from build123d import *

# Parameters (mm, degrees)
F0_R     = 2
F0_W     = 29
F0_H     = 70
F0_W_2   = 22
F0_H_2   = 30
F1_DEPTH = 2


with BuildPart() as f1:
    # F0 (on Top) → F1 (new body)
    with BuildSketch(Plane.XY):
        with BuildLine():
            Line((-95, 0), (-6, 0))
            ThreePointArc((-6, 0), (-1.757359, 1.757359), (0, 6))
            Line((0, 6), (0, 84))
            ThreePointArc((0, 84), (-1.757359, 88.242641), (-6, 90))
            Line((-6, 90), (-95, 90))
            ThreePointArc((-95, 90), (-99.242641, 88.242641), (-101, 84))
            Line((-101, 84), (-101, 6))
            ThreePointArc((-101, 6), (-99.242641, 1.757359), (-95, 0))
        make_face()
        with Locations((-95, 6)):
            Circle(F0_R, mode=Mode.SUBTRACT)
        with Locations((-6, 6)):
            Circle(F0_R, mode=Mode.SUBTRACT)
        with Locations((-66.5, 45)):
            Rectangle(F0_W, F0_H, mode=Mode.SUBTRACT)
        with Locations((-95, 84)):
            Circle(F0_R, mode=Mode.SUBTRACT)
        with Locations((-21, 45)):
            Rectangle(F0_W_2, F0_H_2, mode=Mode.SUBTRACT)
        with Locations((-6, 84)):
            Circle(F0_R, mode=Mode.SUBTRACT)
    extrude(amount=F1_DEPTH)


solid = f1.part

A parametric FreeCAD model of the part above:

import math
import FreeCAD as App
import Part
import Sketcher
from FreeCAD import Vector


def add_polygon(sketch, points):
    """Adds a closed chain of lines whose ends are joined by coincident constraints."""
    first, n = sketch.GeometryCount, len(points)
    for a, b in zip(points, points[1:] + points[:1]):
        sketch.addGeometry(Part.LineSegment(App.Vector(*a, 0), App.Vector(*b, 0)), False)
    for i in range(n):
        sketch.addConstraint(Sketcher.Constraint("Coincident", first + i, 2, first + (i + 1) % n, 1))

doc = App.newDocument("Part")
params = doc.addObject("Spreadsheet::Sheet", "Params")
for row, (alias, value) in enumerate([
    ("sketch1_diameter", "4 mm"),
    ("sketch1_radius", "5.999999 mm"),
    ("sketch1_width", "89 mm"),
    ("sketch1_width2", "29 mm"),
    ("sketch1_width3", "22 mm"),
    ("pad1_length", "2 mm"),
], start=1):
    params.set(f"A{row}", alias)
    params.set(f"B{row}", "=" + value)
    params.setAlias(f"B{row}", alias)

body = doc.addObject("PartDesign::Body", "Body")

# Sketch on XY plane
sketch1 = doc.addObject("Sketcher::SketchObject", "Sketch")
body.addObject(sketch1)
sketch1.AttachmentSupport = (doc.XY_Plane, [""])
sketch1.MapMode = "FlatFace"
sketch1.addGeometry(Part.LineSegment(Vector(-95, 0, 0), Vector(-6, 0, 0)), False)  # 0
sketch1.addGeometry(Part.ArcOfCircle(Part.Circle(Vector(-5.999999, 5.999999, 0), Vector(0, 0, 1), 5.999999), math.radians(-90.00001), math.radians(0.00001)), False)  # 1
sketch1.addGeometry(Part.LineSegment(Vector(0, 6, 0), Vector(0, 84, 0)), False)  # 2
sketch1.addGeometry(Part.ArcOfCircle(Part.Circle(Vector(-5.999999, 84.000001, 0), Vector(0, 0, 1), 5.999999), math.radians(-0.00001), math.radians(90.00001)), False)  # 3
sketch1.addGeometry(Part.LineSegment(Vector(-6, 90, 0), Vector(-95, 90, 0)), False)  # 4
sketch1.addGeometry(Part.ArcOfCircle(Part.Circle(Vector(-95.000001, 84.000001, 0), Vector(0, 0, 1), 5.999999), math.radians(89.99999), math.radians(180.00001)), False)  # 5
sketch1.addGeometry(Part.LineSegment(Vector(-101, 84, 0), Vector(-101, 6, 0)), False)  # 6
sketch1.addGeometry(Part.ArcOfCircle(Part.Circle(Vector(-95.000001, 5.999999, 0), Vector(0, 0, 1), 5.999999), math.radians(179.99999), math.radians(270.00001)), False)  # 7
sketch1.addGeometry(Part.Circle(Vector(-95, 6, 0), Vector(0, 0, 1), 2), False)  # 8
sketch1.addGeometry(Part.Circle(Vector(-6, 6, 0), Vector(0, 0, 1), 2), False)  # 9
add_polygon(sketch1, [(-52, 10), (-81, 10), (-81, 80), (-52, 80)])  # lines 10-13
sketch1.addGeometry(Part.Circle(Vector(-95, 84, 0), Vector(0, 0, 1), 2), False)  # 14
add_polygon(sketch1, [(-10, 30), (-32, 30), (-32, 60), (-10, 60)])  # lines 15-18
sketch1.addGeometry(Part.Circle(Vector(-6, 84, 0), Vector(0, 0, 1), 2), False)  # 19
sketch1.addConstraint([
    Sketcher.Constraint("Tangent", 0, 2, 1, 1),
    Sketcher.Constraint("Tangent", 1, 2, 2, 1),
    Sketcher.Constraint("Tangent", 2, 2, 3, 1),
    Sketcher.Constraint("Tangent", 3, 2, 4, 1),
    Sketcher.Constraint("Tangent", 4, 2, 5, 1),
    Sketcher.Constraint("Tangent", 5, 2, 6, 1),
    Sketcher.Constraint("Tangent", 6, 2, 7, 1),
    Sketcher.Constraint("Tangent", 7, 2, 0, 1),
    Sketcher.Constraint("Horizontal", 0),
    Sketcher.Constraint("Vertical", 2),
    Sketcher.Constraint("Horizontal", 4),
    Sketcher.Constraint("Vertical", 6),
    Sketcher.Constraint("Horizontal", 10),
    Sketcher.Constraint("Vertical", 11),
    Sketcher.Constraint("Horizontal", 12),
    Sketcher.Constraint("Vertical", 13),
    Sketcher.Constraint("Horizontal", 15),
    Sketcher.Constraint("Vertical", 16),
    Sketcher.Constraint("Horizontal", 17),
    Sketcher.Constraint("Vertical", 18),
    Sketcher.Constraint("Coincident", 8, 3, 7, 3),
    Sketcher.Constraint("Coincident", 9, 3, 1, 3),
    Sketcher.Constraint("Coincident", 14, 3, 5, 3),
    Sketcher.Constraint("Coincident", 19, 3, 3, 3),
    Sketcher.Constraint("Equal", 1, 3),
    Sketcher.Constraint("Equal", 3, 5),
    Sketcher.Constraint("Equal", 5, 7),
    Sketcher.Constraint("Equal", 8, 9),
    Sketcher.Constraint("Equal", 9, 14),
    Sketcher.Constraint("Equal", 14, 19),
    Sketcher.Constraint("PointOnObject", 0, 2, -1),
    Sketcher.Constraint("PointOnObject", 1, 2, -2),
    Sketcher.Constraint("Diameter", 8, 4.0),
    Sketcher.Constraint("Radius", 1, 5.999999),
    Sketcher.Constraint("DistanceX", 0, 1, 0, 2, 89.0),
    Sketcher.Constraint("DistanceX", 10, 2, 10, 1, 29.0),
    Sketcher.Constraint("DistanceX", 15, 2, 15, 1, 22.0),
    Sketcher.Constraint("DistanceY", 2, 1, 2, 2, 78.0),
    Sketcher.Constraint("DistanceY", 11, 1, 11, 2, 70.0),
    Sketcher.Constraint("DistanceY", 16, 1, 16, 2, 30.0),
    Sketcher.Constraint("DistanceX", 10, 2, -1, 1, 81.0),
    Sketcher.Constraint("DistanceY", -1, 1, 10, 2, 10.0),
    Sketcher.Constraint("DistanceX", 15, 2, -1, 1, 32.0),
    Sketcher.Constraint("DistanceY", -1, 1, 15, 2, 30.0),
])
sketch1.setExpression("Constraints[40]", "Params.sketch1_diameter")
sketch1.setExpression("Constraints[41]", "Params.sketch1_radius")
sketch1.setExpression("Constraints[42]", "Params.sketch1_width")
sketch1.setExpression("Constraints[43]", "Params.sketch1_width2")
sketch1.setExpression("Constraints[44]", "Params.sketch1_width3")
pad1 = doc.addObject("PartDesign::Pad", "Pad")
body.addObject(pad1)
pad1.Profile = sketch1
pad1.setExpression("Length", "Params.pad1_length")

doc.recompute()
